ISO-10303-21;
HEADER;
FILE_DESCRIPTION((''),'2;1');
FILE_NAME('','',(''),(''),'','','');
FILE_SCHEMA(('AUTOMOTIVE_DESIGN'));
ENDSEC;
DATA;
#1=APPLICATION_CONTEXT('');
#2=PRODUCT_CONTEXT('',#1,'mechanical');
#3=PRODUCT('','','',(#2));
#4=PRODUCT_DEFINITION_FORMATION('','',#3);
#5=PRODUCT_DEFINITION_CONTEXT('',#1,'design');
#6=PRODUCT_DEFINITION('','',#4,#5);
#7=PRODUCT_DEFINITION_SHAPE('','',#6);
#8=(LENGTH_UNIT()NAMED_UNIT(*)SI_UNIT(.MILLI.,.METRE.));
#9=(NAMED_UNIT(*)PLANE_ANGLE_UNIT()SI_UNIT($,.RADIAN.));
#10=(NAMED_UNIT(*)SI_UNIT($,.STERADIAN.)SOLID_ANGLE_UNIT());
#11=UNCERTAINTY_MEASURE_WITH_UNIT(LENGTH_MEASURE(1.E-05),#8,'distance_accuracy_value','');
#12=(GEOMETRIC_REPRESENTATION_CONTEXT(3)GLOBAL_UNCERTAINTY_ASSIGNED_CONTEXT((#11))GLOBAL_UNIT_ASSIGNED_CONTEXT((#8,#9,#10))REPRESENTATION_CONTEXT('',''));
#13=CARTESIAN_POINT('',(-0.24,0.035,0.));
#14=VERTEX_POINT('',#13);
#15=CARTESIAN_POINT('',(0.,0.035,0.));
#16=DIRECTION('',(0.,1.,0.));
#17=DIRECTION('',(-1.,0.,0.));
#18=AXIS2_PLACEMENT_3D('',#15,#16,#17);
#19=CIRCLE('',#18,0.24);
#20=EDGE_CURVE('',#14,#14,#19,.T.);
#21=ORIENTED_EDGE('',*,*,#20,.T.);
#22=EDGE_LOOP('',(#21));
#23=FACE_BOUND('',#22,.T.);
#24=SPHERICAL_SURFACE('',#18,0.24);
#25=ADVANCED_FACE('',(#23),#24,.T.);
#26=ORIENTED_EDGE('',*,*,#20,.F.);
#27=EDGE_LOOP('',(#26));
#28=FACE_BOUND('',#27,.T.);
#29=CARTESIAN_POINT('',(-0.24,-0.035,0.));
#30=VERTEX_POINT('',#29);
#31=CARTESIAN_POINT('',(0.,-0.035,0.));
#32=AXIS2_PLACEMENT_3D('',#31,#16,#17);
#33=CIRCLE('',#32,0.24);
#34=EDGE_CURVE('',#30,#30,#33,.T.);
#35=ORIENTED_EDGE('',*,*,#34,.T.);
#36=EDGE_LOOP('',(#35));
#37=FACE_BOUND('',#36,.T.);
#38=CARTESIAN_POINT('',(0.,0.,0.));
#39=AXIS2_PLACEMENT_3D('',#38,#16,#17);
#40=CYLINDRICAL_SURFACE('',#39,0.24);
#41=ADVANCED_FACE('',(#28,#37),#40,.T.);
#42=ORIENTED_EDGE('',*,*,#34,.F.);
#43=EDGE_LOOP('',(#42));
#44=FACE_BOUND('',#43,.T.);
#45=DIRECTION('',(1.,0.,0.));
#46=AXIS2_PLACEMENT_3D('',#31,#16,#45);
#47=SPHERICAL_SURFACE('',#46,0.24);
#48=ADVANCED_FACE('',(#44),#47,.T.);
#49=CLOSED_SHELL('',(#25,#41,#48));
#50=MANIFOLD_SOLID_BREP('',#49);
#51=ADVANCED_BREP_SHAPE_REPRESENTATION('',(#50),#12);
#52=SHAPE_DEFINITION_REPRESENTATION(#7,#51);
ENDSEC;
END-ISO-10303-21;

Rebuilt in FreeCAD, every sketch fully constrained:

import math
import FreeCAD as App
import Part
import Sketcher

V = App.Vector

doc = App.newDocument("Part")
params = doc.addObject("Spreadsheet::Sheet", "Params")
for row, (alias, value) in enumerate([
    ("sketch1_radius", "0.24 mm"),
    ("sketch1_height", "0.55 mm"),
    ("revolution_angle", "180 deg"),
], start=1):
    params.set(f"A{row}", alias)
    params.set(f"B{row}", "=" + value)
    params.setAlias(f"B{row}", alias)

body = doc.addObject("PartDesign::Body", "Body")

# Sketch on XY plane
sketch1 = body.newObject("Sketcher::SketchObject", "Sketch")
sketch1.AttachmentSupport = (doc.getObject("XY_Plane"), [""])
sketch1.MapMode = "FlatFace"
sketch1.addGeometry([
    Part.LineSegment(V(0, -0.28, 0), V(0, 0.28, 0)),
    Part.ArcOfCircle(Part.Circle(V(0, 0.03, 0), V(0, 0, 1), 0.24), math.radians(90), math.radians(180)),
    Part.LineSegment(V(-0.24, 0.04, 0), V(-0.24, -0.04, 0)),
    Part.ArcOfCircle(Part.Circle(V(0, -0.03, 0), V(0, 0, 1), 0.24), math.radians(-180), math.radians(-90)),
], False)
sketch1.addConstraint([
    Sketcher.Constraint("Coincident", 0, 2, 1, 1),
    Sketcher.Constraint("Tangent", 1, 2, 2, 1),
    Sketcher.Constraint("Tangent", 2, 2, 3, 1),
    Sketcher.Constraint("Coincident", 3, 2, 0, 1),
    Sketcher.Constraint("Vertical", 0),
    Sketcher.Constraint("Vertical", 2),
    Sketcher.Constraint("Equal", 1, 3),
    Sketcher.Constraint("Symmetric", 1, 3, 3, 3, -1, 1),
    Sketcher.Constraint("PointOnObject", 0, 2, -2),
    Sketcher.Constraint("Radius", 1, 0.24),
    Sketcher.Constraint("DistanceY", 0, 1, 0, 2, 0.55),
])
sketch1.setExpression("Constraints[9]", "Params.sketch1_radius")
sketch1.setExpression("Constraints[10]", "Params.sketch1_height")
revolution = body.newObject("PartDesign::Revolution", "Revolution")
revolution.Profile = sketch1
revolution.ReferenceAxis = (sketch1, ["V_Axis"])
revolution.setExpression("Angle", "Params.revolution_angle")
revolution.Reversed = True
body2 = doc.addObject("PartDesign::Body", "Body001")
doc.recompute()

body2.BaseFeature = body
doc.recompute()

mirroring = doc.addObject("Part::Mirroring", "Mirroring")
mirroring.Source = body
mirroring.Base = V(0, 0, 0)
mirroring.Normal = V(0, 0, 1)
body3 = doc.addObject("PartDesign::Body", "Body002")
body3.BaseFeature = mirroring
boolean = body2.newObject("PartDesign::Boolean", "Boolean")
boolean.Type = "Fuse"
boolean.addObjects([body3])
doc.recompute()
mirroring.Visibility = False

doc.recompute()
